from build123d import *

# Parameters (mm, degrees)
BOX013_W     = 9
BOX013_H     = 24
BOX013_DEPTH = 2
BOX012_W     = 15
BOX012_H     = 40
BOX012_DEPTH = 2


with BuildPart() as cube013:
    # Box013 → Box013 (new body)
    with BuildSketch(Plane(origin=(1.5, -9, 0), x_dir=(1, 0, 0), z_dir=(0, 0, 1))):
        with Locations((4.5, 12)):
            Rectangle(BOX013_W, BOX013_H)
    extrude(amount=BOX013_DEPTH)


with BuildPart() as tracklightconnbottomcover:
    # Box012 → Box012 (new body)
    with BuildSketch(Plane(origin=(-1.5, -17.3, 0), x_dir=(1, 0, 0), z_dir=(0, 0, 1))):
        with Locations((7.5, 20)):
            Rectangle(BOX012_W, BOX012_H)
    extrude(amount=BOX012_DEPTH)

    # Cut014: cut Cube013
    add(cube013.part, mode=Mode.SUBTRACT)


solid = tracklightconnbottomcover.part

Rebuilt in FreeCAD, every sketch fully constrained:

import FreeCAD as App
import Part
import Sketcher

doc = App.newDocument("Part")
body = doc.addObject("PartDesign::Body", "Body")

# Sketch on XY plane
sketch1 = body.newObject("Sketcher::SketchObject", "Sketch")
sketch1.AttachmentSupport = (doc.getObject("XY_Plane"), [""])
sketch1.MapMode = "FlatFace"
sketch1.addGeometry(Part.LineSegment(App.Vector(1.5, 15, 0), App.Vector(1.5, -9, 0)), False)
sketch1.addGeometry(Part.LineSegment(App.Vector(1.5, -9, 0), App.Vector(10.5, -9, 0)), False)
sketch1.addGeometry(Part.LineSegment(App.Vector(10.5, -9, 0), App.Vector(10.5, 15, 0)), False)
sketch1.addGeometry(Part.LineSegment(App.Vector(10.5, 15, 0), App.Vector(1.5, 15, 0)), False)
sketch1.addConstraint(Sketcher.Constraint("Coincident", 0, 2, 1, 1))
sketch1.addConstraint(Sketcher.Constraint("Coincident", 1, 2, 2, 1))
sketch1.addConstraint(Sketcher.Constraint("Coincident", 2, 2, 3, 1))
sketch1.addConstraint(Sketcher.Constraint("Coincident", 3, 2, 0, 1))
sketch1.addConstraint(Sketcher.Constraint("Vertical", 0))
sketch1.addConstraint(Sketcher.Constraint("Horizontal", 1))
sketch1.addConstraint(Sketcher.Constraint("Vertical", 2))
sketch1.addConstraint(Sketcher.Constraint("Horizontal", 3))
sketch1.addConstraint(Sketcher.Constraint("DistanceX", 1, 1, 1, 2, 9.0))
sketch1.addConstraint(Sketcher.Constraint("DistanceY", 0, 2, 0, 1, 24.0))
sketch1.addConstraint(Sketcher.Constraint("DistanceY", 0, 2, -1, 1, 9.0))
sketch1.addConstraint(Sketcher.Constraint("DistanceX", -1, 1, 0, 2, 1.5))
pad1 = body.newObject("PartDesign::Pad", "Pad")
pad1.Profile = sketch1
pad1.Length = 2
body2 = doc.addObject("PartDesign::Body", "Body001")

# Sketch on XY plane
sketch2 = body2.newObject("Sketcher::SketchObject", "Sketch001")
sketch2.AttachmentSupport = (doc.getObject("XY_Plane001"), [""])
sketch2.MapMode = "FlatFace"
sketch2.addGeometry(Part.LineSegment(App.Vector(-1.5, 22.7, 0), App.Vector(-1.5, -17.3, 0)), False)
sketch2.addGeometry(Part.LineSegment(App.Vector(-1.5, -17.3, 0), App.Vector(13.5, -17.3, 0)), False)
sketch2.addGeometry(Part.LineSegment(App.Vector(13.5, -17.3, 0), App.Vector(13.5, 22.7, 0)), False)
sketch2.addGeometry(Part.LineSegment(App.Vector(13.5, 22.7, 0), App.Vector(-1.5, 22.7, 0)), False)
sketch2.addConstraint(Sketcher.Constraint("Coincident", 0, 2, 1, 1))
sketch2.addConstraint(Sketcher.Constraint("Coincident", 1, 2, 2, 1))
sketch2.addConstraint(Sketcher.Constraint("Coincident", 2, 2, 3, 1))
sketch2.addConstraint(Sketcher.Constraint("Coincident", 3, 2, 0, 1))
sketch2.addConstraint(Sketcher.Constraint("Vertical", 0))
sketch2.addConstraint(Sketcher.Constraint("Horizontal", 1))
sketch2.addConstraint(Sketcher.Constraint("Vertical", 2))
sketch2.addConstraint(Sketcher.Constraint("Horizontal", 3))
sketch2.addConstraint(Sketcher.Constraint("DistanceX", 1, 1, 1, 2, 15.0))
sketch2.addConstraint(Sketcher.Constraint("DistanceY", 0, 2, 0, 1, 40.0))
sketch2.addConstraint(Sketcher.Constraint("DistanceX", 0, 2, -1, 1, 1.5))
sketch2.addConstraint(Sketcher.Constraint("DistanceY", 0, 2, -1, 1, 17.3))
pad2 = body2.newObject("PartDesign::Pad", "Pad001")
pad2.Profile = sketch2
pad2.Length = 2
doc.recompute()

boolean = body2.newObject("PartDesign::Boolean", "Boolean")
boolean.Type = "Cut"
boolean.addObjects([body])

doc.recompute()
